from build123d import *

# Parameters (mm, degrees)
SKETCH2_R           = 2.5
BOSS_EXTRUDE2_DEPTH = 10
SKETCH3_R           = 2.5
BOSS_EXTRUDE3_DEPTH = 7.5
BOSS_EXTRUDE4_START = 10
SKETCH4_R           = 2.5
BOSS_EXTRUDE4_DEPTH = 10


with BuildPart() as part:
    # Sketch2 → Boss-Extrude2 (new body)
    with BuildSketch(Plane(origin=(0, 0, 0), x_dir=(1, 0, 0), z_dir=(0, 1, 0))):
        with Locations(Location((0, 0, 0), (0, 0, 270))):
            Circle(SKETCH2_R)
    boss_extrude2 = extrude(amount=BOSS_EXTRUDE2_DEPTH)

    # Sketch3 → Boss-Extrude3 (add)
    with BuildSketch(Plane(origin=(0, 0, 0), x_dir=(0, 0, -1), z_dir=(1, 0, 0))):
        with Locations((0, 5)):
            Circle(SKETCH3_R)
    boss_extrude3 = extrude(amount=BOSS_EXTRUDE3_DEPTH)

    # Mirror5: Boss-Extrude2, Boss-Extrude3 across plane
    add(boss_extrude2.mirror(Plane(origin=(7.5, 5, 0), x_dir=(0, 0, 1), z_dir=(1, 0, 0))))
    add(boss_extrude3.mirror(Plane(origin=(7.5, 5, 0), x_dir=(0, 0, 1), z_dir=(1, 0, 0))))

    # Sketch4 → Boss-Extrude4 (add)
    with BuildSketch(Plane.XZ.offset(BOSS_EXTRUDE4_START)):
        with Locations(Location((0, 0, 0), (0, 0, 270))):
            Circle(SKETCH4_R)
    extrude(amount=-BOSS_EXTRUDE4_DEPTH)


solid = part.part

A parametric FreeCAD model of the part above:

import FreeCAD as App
import Part
import Sketcher
from FreeCAD import Vector

doc = App.newDocument("Part")
body = doc.addObject("PartDesign::Body", "Body")

# Sketch on XZ plane
sketch1 = body.newObject("Sketcher::SketchObject", "Sketch")
sketch1.AttachmentSupport = (doc.getObject("XZ_Plane"), [""])
sketch1.MapMode = "FlatFace"
sketch1.addGeometry(Part.Circle(Vector(0, 0, 0), Vector(0, 0, 1), 2.5), False)
sketch1.addConstraint([
    Sketcher.Constraint("Coincident", 0, 3, -1, 1),
    Sketcher.Constraint("Diameter", 0, 5.0),
])
pad1 = body.newObject("PartDesign::Pad", "Pad")
pad1.Profile = sketch1
pad1.Length = 10
pad1.Reversed = True

# Sketch on YZ plane
sketch2 = body.newObject("Sketcher::SketchObject", "Sketch001")
sketch2.AttachmentSupport = (doc.getObject("YZ_Plane"), [""])
sketch2.MapMode = "FlatFace"
sketch2.addGeometry(Part.Circle(Vector(5, 0, 0), Vector(0, 0, 1), 2.5), False)
sketch2.addConstraint([
    Sketcher.Constraint("PointOnObject", 0, 3, -1),
    Sketcher.Constraint("Diameter", 0, 5.0),
    Sketcher.Constraint("DistanceX", -1, 1, 0, 3, 5.0),
])
pad2 = body.newObject("PartDesign::Pad", "Pad001")
pad2.Profile = sketch2
pad2.Length = 7.5
doc.recompute()

datumplane = body.newObject("PartDesign::Plane", "DatumPlane")
datumplane.AttachmentSupport = (doc.getObject("YZ_Plane"), [""])
datumplane.MapMode = "FlatFace"
datumplane.AttachmentOffset = App.Placement(Vector(0, 0, 7.5), App.Rotation())
mirrored = body.newObject("PartDesign::Mirrored", "Mirrored")
mirrored.Originals = [pad1, pad2]
mirrored.MirrorPlane = (datumplane, [""])
body.Tip = mirrored

# Sketch on XZ plane
sketch3 = body.newObject("Sketcher::SketchObject", "Sketch002")
sketch3.AttachmentSupport = (doc.getObject("XZ_Plane"), [""])
sketch3.MapMode = "FlatFace"
sketch3.AttachmentOffset = App.Placement(Vector(0, 0, 10), App.Rotation())
sketch3.addGeometry(Part.Circle(Vector(0, 0, 0), Vector(0, 0, 1), 2.5), False)
sketch3.addConstraint([
    Sketcher.Constraint("Coincident", 0, 3, -1, 1),
    Sketcher.Constraint("Diameter", 0, 5.0),
])
pad3 = body.newObject("PartDesign::Pad", "Pad002")
pad3.Profile = sketch3
pad3.Length = 10
pad3.Reversed = True

doc.recompute()
